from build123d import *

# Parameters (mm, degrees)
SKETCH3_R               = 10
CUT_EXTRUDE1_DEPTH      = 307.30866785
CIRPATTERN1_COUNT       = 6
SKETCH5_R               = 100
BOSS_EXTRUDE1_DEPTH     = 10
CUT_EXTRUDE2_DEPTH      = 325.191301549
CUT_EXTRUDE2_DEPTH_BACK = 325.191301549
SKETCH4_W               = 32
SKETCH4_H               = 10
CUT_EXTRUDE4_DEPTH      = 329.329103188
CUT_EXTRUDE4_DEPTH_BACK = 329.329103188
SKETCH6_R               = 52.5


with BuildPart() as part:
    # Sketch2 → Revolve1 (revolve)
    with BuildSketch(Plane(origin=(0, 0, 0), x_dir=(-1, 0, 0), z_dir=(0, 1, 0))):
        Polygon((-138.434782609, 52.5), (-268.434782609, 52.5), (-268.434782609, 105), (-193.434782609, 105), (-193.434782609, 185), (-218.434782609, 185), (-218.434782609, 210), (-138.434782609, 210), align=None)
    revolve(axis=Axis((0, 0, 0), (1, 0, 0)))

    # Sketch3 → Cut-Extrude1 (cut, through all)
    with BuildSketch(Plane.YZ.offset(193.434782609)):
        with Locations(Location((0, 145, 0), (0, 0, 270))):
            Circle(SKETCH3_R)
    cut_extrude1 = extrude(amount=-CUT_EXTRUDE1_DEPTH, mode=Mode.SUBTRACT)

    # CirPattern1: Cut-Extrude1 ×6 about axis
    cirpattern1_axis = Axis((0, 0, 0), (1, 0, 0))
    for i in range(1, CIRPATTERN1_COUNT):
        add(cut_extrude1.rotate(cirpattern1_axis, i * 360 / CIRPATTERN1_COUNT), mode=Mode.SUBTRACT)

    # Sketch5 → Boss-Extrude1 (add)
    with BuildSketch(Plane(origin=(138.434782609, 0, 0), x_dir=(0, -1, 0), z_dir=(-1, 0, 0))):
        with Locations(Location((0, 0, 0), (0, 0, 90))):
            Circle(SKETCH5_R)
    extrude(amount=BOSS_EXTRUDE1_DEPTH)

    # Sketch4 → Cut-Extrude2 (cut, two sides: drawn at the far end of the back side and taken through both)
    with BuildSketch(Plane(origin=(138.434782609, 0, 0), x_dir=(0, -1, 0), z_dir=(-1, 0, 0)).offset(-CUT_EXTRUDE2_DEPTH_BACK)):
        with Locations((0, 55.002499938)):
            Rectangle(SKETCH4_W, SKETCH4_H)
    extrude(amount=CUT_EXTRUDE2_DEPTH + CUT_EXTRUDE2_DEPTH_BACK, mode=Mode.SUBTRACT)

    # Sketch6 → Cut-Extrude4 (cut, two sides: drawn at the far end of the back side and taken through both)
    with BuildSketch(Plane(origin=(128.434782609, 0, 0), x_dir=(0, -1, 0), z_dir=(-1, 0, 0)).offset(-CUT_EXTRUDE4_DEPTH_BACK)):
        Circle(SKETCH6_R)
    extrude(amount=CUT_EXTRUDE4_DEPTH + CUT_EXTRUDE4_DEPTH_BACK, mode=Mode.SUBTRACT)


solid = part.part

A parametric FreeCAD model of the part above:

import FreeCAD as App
import Part
import Sketcher

doc = App.newDocument("Part")
body = doc.addObject("PartDesign::Body", "Body")

sketch1 = body.newObject("Sketcher::SketchObject", "Sketch")
sketch1.AttachmentSupport = (doc.getObject("XZ_Plane"), [""])
sketch1.MapMode = "FlatFace"
sketch1.addGeometry(Part.LineSegment(App.Vector(268.434783, 52.5, 0), App.Vector(138.434783, 52.5, 0)), False)
sketch1.addGeometry(Part.LineSegment(App.Vector(138.434783, 52.5, 0), App.Vector(138.434783, 210, 0)), False)
sketch1.addGeometry(Part.LineSegment(App.Vector(138.434783, 210, 0), App.Vector(218.434783, 210, 0)), False)
sketch1.addGeometry(Part.LineSegment(App.Vector(218.434783, 210, 0), App.Vector(218.434783, 185, 0)), False)
sketch1.addGeometry(Part.LineSegment(App.Vector(218.434783, 185, 0), App.Vector(193.434783, 185, 0)), False)
sketch1.addGeometry(Part.LineSegment(App.Vector(193.434783, 185, 0), App.Vector(193.434783, 105, 0)), False)
sketch1.addGeometry(Part.LineSegment(App.Vector(193.434783, 105, 0), App.Vector(268.434783, 105, 0)), False)
sketch1.addGeometry(Part.LineSegment(App.Vector(268.434783, 105, 0), App.Vector(268.434783, 52.5, 0)), False)
sketch1.addConstraint(Sketcher.Constraint("Coincident", 0, 2, 1, 1))
sketch1.addConstraint(Sketcher.Constraint("Coincident", 1, 2, 2, 1))
sketch1.addConstraint(Sketcher.Constraint("Coincident", 2, 2, 3, 1))
sketch1.addConstraint(Sketcher.Constraint("Coincident", 3, 2, 4, 1))
sketch1.addConstraint(Sketcher.Constraint("Coincident", 4, 2, 5, 1))
sketch1.addConstraint(Sketcher.Constraint("Coincident", 5, 2, 6, 1))
sketch1.addConstraint(Sketcher.Constraint("Coincident", 6, 2, 7, 1))
sketch1.addConstraint(Sketcher.Constraint("Coincident", 7, 2, 0, 1))
sketch1.addConstraint(Sketcher.Constraint("Horizontal", 0))
sketch1.addConstraint(Sketcher.Constraint("Vertical", 1))
sketch1.addConstraint(Sketcher.Constraint("Horizontal", 2))
sketch1.addConstraint(Sketcher.Constraint("Vertical", 3))
sketch1.addConstraint(Sketcher.Constraint("Horizontal", 4))
sketch1.addConstraint(Sketcher.Constraint("Vertical", 5))
sketch1.addConstraint(Sketcher.Constraint("Horizontal", 6))
sketch1.addConstraint(Sketcher.Constraint("Vertical", 7))
sketch1.addConstraint(Sketcher.Constraint("Equal", 4, 3))
sketch1.addConstraint(Sketcher.Constraint("Equal", 2, 5))
sketch1.addConstraint(Sketcher.Constraint("DistanceX", 0, 2, 0, 1, 130.0))
sketch1.addConstraint(Sketcher.Constraint("DistanceX", 2, 1, 2, 2, 80.0))
sketch1.addConstraint(Sketcher.Constraint("DistanceX", 4, 2, 4, 1, 25.0))
sketch1.addConstraint(Sketcher.Constraint("DistanceY", 1, 1, 1, 2, 157.5))
sketch1.addConstraint(Sketcher.Constraint("DistanceY", -1, 1, 1, 2, 210.0))
sketch1.addConstraint(Sketcher.Constraint("DistanceX", -1, 1, 0, 2, 138.434783))
revolution = body.newObject("PartDesign::Revolution", "Revolution")
revolution.Profile = sketch1
revolution.ReferenceAxis = (sketch1, ["H_Axis"])
revolution.Angle = 360

sketch2 = body.newObject("Sketcher::SketchObject", "Sketch001")
sketch2.AttachmentSupport = (doc.getObject("YZ_Plane"), [""])
sketch2.MapMode = "FlatFace"
sketch2.AttachmentOffset = App.Placement(App.Vector(0, 0, 193.434783), App.Rotation())
sketch2.addGeometry(Part.Circle(App.Vector(0, 145, 0), App.Vector(0, 0, 1), 10), False)
sketch2.addConstraint(Sketcher.Constraint("PointOnObject", 0, 3, -2))
sketch2.addConstraint(Sketcher.Constraint("Diameter", 0, 20.0))
sketch2.addConstraint(Sketcher.Constraint("DistanceY", -1, 1, 0, 3, 145.0))
pocket1 = body.newObject("PartDesign::Pocket", "Pocket")
pocket1.Profile = sketch2
pocket1.Type = "ThroughAll"
doc.recompute()

polarpattern = body.newObject("PartDesign::PolarPattern", "PolarPattern")
polarpattern.Originals = [pocket1]
polarpattern.Axis = (doc.getObject("X_Axis"), [""])
polarpattern.Angle = 360
polarpattern.Occurrences = 6
body.Tip = polarpattern

sketch3 = body.newObject("Sketcher::SketchObject", "Sketch002")
sketch3.AttachmentSupport = (doc.getObject("YZ_Plane"), [""])
sketch3.MapMode = "FlatFace"
sketch3.AttachmentOffset = App.Placement(App.Vector(0, 0, 138.434783), App.Rotation())
sketch3.addGeometry(Part.Circle(App.Vector(0, 0, 0), App.Vector(0, 0, 1), 100), False)
sketch3.addConstraint(Sketcher.Constraint("Coincident", 0, 3, -1, 1))
sketch3.addConstraint(Sketcher.Constraint("Diameter", 0, 200.0))
pad1 = body.newObject("PartDesign::Pad", "Pad")
pad1.Profile = sketch3
pad1.Length = 10
pad1.Reversed = True

sketch4 = body.newObject("Sketcher::SketchObject", "Sketch003")
sketch4.AttachmentSupport = (doc.getObject("YZ_Plane"), [""])
sketch4.MapMode = "FlatFace"
sketch4.AttachmentOffset = App.Placement(App.Vector(0, 0, 138.434783), App.Rotation())
sketch4.addGeometry(Part.LineSegment(App.Vector(16, 60.0025, 0), App.Vector(16, 50.0025, 0)), False)
sketch4.addGeometry(Part.LineSegment(App.Vector(16, 50.0025, 0), App.Vector(-16, 50.0025, 0)), False)
sketch4.addGeometry(Part.LineSegment(App.Vector(-16, 50.0025, 0), App.Vector(-16, 60.0025, 0)), False)
sketch4.addGeometry(Part.LineSegment(App.Vector(-16, 60.0025, 0), App.Vector(16, 60.0025, 0)), False)
sketch4.addConstraint(Sketcher.Constraint("Coincident", 0, 2, 1, 1))
sketch4.addConstraint(Sketcher.Constraint("Coincident", 1, 2, 2, 1))
sketch4.addConstraint(Sketcher.Constraint("Coincident", 2, 2, 3, 1))
sketch4.addConstraint(Sketcher.Constraint("Coincident", 3, 2, 0, 1))
sketch4.addConstraint(Sketcher.Constraint("Vertical", 0))
sketch4.addConstraint(Sketcher.Constraint("Horizontal", 1))
sketch4.addConstraint(Sketcher.Constraint("Vertical", 2))
sketch4.addConstraint(Sketcher.Constraint("Horizontal", 3))
sketch4.addConstraint(Sketcher.Constraint("DistanceX", 1, 2, 1, 1, 32.0))
sketch4.addConstraint(Sketcher.Constraint("DistanceY", 0, 2, 0, 1, 10.0))
sketch4.addConstraint(Sketcher.Constraint("DistanceX", -1, 1, 0, 2, 16.0))
sketch4.addConstraint(Sketcher.Constraint("DistanceY", -1, 1, 0, 2, 50.0025))
pocket2 = body.newObject("PartDesign::Pocket", "Pocket001")
pocket2.Profile = sketch4
pocket2.Type = "ThroughAll"
pocket2.Midplane = True

sketch5 = body.newObject("Sketcher::SketchObject", "Sketch004")
sketch5.AttachmentSupport = (doc.getObject("YZ_Plane"), [""])
sketch5.MapMode = "FlatFace"
sketch5.AttachmentOffset = App.Placement(App.Vector(0, 0, 128.434783), App.Rotation())
sketch5.addGeometry(Part.Circle(App.Vector(0, 0, 0), App.Vector(0, 0, 1), 52.5), False)
sketch5.addConstraint(Sketcher.Constraint("Coincident", 0, 3, -1, 1))
sketch5.addConstraint(Sketcher.Constraint("Diameter", 0, 105.0))
pocket3 = body.newObject("PartDesign::Pocket", "Pocket002")
pocket3.Profile = sketch5
pocket3.Type = "ThroughAll"
pocket3.Midplane = True

doc.recompute()
